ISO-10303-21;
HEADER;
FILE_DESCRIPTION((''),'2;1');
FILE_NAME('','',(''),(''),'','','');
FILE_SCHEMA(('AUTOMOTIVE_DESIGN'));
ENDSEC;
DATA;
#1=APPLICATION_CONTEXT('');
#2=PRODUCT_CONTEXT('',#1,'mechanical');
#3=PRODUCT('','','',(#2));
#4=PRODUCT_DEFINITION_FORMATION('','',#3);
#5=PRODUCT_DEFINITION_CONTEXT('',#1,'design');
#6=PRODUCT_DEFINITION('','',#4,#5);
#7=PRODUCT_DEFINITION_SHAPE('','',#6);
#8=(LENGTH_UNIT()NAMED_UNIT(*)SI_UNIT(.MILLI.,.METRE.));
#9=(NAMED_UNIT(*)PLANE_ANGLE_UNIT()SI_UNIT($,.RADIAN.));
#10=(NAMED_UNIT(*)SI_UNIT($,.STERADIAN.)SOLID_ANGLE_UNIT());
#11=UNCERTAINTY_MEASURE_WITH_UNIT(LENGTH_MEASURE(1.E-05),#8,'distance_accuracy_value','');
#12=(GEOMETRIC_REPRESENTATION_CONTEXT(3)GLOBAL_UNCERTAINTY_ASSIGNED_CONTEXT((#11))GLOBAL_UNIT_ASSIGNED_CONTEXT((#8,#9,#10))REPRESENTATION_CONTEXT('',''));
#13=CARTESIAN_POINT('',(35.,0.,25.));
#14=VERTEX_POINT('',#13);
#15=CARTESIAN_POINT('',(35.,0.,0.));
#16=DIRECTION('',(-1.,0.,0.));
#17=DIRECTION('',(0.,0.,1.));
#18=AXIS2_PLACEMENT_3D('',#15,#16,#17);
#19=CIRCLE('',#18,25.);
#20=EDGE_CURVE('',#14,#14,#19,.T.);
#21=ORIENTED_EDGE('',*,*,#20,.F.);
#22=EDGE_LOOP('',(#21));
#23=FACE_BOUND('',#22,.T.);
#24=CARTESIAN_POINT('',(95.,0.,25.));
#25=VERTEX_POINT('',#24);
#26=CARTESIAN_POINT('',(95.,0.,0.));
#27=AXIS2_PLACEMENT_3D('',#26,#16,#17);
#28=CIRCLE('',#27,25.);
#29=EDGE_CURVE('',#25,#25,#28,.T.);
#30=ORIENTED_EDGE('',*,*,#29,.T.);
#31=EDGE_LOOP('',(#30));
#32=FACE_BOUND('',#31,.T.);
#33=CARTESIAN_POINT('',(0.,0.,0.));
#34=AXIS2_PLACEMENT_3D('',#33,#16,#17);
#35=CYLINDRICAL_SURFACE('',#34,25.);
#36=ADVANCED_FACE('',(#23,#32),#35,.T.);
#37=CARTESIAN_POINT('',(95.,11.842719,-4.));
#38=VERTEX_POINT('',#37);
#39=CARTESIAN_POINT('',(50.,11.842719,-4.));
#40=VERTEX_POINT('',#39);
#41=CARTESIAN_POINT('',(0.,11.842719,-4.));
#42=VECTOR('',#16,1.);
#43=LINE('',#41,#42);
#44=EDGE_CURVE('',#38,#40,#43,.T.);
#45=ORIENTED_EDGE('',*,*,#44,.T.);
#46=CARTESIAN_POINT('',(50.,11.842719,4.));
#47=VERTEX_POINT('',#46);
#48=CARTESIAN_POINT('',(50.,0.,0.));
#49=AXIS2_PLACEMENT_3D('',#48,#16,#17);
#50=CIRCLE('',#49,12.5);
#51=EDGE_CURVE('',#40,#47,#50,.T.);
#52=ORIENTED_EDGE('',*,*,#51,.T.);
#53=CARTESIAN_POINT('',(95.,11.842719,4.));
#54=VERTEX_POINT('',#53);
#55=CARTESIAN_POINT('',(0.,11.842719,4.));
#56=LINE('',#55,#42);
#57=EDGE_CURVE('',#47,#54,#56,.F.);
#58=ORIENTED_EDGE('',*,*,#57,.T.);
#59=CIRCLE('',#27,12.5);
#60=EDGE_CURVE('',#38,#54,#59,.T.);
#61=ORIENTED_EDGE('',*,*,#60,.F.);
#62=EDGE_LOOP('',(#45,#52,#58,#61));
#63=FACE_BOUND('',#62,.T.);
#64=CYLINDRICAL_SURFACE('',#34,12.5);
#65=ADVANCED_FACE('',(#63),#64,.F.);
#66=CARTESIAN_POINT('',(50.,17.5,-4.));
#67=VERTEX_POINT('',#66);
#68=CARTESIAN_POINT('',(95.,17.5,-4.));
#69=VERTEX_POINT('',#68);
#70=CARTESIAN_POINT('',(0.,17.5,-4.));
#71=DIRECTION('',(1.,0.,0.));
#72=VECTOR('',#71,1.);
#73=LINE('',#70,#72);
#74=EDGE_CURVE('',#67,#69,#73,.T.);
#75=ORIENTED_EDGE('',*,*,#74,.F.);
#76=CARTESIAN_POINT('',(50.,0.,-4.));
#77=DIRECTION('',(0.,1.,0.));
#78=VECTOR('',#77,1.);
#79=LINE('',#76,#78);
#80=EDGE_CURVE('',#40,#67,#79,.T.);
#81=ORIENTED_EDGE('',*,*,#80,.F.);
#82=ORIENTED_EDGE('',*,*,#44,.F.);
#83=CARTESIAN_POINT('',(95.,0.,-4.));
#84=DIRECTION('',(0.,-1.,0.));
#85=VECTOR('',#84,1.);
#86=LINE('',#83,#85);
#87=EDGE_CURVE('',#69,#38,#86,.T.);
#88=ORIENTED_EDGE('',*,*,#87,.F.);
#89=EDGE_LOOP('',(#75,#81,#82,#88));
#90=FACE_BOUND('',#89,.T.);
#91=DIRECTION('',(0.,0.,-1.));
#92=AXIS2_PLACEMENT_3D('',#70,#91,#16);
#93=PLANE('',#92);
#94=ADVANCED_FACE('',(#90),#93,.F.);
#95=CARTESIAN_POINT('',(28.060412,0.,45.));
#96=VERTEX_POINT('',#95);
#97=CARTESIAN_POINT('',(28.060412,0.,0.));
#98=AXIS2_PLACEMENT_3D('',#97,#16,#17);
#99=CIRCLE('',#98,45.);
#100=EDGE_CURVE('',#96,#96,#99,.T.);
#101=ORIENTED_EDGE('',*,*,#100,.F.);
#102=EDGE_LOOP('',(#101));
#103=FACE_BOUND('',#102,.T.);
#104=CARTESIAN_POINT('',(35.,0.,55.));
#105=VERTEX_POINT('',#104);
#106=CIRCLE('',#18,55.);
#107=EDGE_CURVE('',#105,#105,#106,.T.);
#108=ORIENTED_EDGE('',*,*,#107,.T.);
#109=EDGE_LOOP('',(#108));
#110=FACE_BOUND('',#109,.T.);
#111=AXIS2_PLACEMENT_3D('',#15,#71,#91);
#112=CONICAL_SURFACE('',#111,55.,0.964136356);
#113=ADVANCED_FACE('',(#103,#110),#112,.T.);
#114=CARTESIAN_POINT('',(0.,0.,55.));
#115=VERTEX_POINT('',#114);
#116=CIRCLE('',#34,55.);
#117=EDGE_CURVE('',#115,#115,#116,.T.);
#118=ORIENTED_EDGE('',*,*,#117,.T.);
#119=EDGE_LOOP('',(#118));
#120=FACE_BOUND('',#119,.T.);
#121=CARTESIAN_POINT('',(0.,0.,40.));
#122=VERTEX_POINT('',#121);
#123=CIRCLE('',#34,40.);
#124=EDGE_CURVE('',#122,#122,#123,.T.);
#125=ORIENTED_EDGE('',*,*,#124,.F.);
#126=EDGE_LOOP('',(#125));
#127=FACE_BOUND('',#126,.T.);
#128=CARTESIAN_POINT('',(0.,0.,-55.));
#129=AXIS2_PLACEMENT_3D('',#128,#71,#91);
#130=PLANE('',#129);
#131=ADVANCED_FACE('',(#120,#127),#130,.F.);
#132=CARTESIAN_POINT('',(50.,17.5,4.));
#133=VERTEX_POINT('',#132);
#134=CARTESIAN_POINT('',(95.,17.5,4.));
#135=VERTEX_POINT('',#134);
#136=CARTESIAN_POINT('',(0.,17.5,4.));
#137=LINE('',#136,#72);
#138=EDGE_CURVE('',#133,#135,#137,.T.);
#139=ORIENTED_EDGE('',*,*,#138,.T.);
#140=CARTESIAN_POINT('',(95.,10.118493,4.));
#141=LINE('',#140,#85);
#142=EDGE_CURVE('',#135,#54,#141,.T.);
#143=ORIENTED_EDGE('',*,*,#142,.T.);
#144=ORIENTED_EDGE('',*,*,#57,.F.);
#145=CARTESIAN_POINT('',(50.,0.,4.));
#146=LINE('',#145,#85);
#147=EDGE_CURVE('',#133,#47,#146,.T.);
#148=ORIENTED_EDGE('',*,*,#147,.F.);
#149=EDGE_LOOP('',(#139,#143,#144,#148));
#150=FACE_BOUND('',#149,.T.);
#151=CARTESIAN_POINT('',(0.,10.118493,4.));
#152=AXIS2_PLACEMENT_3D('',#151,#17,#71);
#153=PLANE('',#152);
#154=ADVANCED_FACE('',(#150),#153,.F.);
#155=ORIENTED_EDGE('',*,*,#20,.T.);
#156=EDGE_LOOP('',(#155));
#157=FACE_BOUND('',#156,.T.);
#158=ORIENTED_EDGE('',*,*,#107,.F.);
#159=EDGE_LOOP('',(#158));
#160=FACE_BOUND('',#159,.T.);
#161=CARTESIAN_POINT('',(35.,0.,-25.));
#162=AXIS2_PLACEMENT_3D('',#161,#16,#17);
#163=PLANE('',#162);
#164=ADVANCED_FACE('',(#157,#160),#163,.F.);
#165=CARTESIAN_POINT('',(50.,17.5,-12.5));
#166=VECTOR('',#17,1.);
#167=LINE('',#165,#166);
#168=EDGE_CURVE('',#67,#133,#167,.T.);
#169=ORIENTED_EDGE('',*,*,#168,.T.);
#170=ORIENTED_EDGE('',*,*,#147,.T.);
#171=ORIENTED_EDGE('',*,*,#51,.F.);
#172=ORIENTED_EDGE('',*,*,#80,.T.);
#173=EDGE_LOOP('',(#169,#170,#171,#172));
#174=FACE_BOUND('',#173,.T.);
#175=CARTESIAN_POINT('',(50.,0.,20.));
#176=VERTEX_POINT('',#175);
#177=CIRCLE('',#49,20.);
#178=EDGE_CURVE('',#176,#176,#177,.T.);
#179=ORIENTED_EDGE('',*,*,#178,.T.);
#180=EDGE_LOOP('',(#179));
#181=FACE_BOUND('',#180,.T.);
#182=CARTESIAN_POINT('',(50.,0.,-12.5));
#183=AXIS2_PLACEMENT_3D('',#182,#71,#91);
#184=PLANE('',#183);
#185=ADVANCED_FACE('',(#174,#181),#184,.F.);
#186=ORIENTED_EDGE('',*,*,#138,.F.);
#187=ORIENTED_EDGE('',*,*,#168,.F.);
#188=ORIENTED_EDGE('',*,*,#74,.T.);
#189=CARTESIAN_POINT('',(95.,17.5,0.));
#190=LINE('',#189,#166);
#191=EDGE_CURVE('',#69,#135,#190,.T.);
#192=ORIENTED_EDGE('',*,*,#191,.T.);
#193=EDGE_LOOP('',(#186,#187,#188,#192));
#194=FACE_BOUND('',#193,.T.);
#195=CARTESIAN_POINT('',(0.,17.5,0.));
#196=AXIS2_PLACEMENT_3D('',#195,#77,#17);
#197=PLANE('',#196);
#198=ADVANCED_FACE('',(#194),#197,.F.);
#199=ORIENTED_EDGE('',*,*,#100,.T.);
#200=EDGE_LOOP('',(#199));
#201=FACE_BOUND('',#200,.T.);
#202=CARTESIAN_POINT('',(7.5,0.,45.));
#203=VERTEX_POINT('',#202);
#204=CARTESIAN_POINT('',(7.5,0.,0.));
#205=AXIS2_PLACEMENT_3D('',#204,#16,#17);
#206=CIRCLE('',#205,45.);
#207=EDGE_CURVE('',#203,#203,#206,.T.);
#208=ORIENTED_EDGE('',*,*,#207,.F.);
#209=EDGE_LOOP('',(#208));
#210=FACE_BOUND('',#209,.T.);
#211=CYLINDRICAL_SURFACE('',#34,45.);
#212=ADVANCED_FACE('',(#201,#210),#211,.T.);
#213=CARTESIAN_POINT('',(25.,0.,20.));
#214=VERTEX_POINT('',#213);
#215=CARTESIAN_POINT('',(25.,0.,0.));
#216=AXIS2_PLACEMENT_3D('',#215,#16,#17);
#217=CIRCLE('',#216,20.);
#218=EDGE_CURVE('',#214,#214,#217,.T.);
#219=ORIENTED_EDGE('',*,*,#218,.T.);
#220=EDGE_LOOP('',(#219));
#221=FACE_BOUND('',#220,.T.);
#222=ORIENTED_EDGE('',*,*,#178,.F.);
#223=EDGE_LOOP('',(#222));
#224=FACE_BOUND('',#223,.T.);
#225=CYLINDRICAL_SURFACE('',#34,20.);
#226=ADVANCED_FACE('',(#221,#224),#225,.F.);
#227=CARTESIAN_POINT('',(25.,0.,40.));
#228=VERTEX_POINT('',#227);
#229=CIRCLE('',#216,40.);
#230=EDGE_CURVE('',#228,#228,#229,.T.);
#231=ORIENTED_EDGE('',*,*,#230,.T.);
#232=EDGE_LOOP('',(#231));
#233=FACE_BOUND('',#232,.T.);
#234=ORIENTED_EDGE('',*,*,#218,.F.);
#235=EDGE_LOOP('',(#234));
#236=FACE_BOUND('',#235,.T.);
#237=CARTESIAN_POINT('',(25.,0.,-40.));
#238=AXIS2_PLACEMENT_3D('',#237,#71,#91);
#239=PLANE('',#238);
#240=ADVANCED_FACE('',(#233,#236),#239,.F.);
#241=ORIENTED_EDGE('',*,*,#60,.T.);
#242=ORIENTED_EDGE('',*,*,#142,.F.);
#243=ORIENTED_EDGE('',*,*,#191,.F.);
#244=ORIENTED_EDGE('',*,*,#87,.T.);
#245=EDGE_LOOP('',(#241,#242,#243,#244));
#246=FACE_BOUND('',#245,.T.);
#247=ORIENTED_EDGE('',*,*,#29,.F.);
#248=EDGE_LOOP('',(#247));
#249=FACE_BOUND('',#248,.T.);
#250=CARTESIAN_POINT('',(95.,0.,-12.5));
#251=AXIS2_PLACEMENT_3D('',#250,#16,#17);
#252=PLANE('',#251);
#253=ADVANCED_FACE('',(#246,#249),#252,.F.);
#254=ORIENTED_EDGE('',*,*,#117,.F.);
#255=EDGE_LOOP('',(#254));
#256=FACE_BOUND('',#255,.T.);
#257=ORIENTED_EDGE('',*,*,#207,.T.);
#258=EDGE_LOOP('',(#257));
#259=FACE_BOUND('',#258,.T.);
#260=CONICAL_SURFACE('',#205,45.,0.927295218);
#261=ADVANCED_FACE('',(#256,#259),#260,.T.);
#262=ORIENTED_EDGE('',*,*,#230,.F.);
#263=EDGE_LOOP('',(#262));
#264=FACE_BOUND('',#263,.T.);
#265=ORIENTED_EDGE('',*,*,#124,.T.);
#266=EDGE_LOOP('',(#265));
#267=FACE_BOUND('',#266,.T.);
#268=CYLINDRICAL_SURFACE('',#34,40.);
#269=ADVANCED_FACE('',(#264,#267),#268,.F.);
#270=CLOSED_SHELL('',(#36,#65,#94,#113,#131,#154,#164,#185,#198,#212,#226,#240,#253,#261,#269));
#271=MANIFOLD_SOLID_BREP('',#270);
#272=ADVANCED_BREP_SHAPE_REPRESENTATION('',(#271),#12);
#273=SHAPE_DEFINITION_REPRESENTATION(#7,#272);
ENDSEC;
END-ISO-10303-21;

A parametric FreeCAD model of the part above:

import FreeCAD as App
import Part
import Sketcher

V = App.Vector

doc = App.newDocument("Part")
body = doc.addObject("PartDesign::Body", "Body")

sketch1 = doc.addObject("Sketcher::SketchObject", "Sketch")
body.addObject(sketch1)
sketch1.AttachmentSupport = (doc.XZ_Plane, [""])
sketch1.MapMode = "FlatFace"
sketch1.addGeometry([
    Part.LineSegment(V(95, -12, 0), V(95, -25, 0)),
    Part.LineSegment(V(95, -25, 0), V(35, -25, 0)),
    Part.LineSegment(V(35, -25, 0), V(35, -55, 0)),
    Part.LineSegment(V(35, -55, 0), V(28, -45, 0)),
    Part.LineSegment(V(28, -45, 0), V(8, -45, 0)),
    Part.LineSegment(V(8, -45, 0), V(0, -55, 0)),
    Part.LineSegment(V(0, -55, 0), V(0, -40, 0)),
    Part.LineSegment(V(0, -40, 0), V(25, -40, 0)),
    Part.LineSegment(V(25, -40, 0), V(25, -20, 0)),
    Part.LineSegment(V(25, -20, 0), V(50, -20, 0)),
    Part.LineSegment(V(50, -20, 0), V(50, -12, 0)),
    Part.LineSegment(V(50, -12, 0), V(95, -12, 0)),
], False)
sketch1.addConstraint([
    Sketcher.Constraint("Coincident", 0, 2, 1, 1),
    Sketcher.Constraint("Coincident", 1, 2, 2, 1),
    Sketcher.Constraint("Coincident", 2, 2, 3, 1),
    Sketcher.Constraint("Coincident", 3, 2, 4, 1),
    Sketcher.Constraint("Coincident", 4, 2, 5, 1),
    Sketcher.Constraint("Coincident", 5, 2, 6, 1),
    Sketcher.Constraint("Coincident", 6, 2, 7, 1),
    Sketcher.Constraint("Coincident", 7, 2, 8, 1),
    Sketcher.Constraint("Coincident", 8, 2, 9, 1),
    Sketcher.Constraint("Coincident", 9, 2, 10, 1),
    Sketcher.Constraint("Coincident", 10, 2, 11, 1),
    Sketcher.Constraint("Coincident", 11, 2, 0, 1),
    Sketcher.Constraint("Vertical", 0),
    Sketcher.Constraint("Horizontal", 1),
    Sketcher.Constraint("Vertical", 2),
    Sketcher.Constraint("Horizontal", 4),
    Sketcher.Constraint("Vertical", 6),
    Sketcher.Constraint("Horizontal", 7),
    Sketcher.Constraint("Vertical", 8),
    Sketcher.Constraint("Horizontal", 9),
    Sketcher.Constraint("Vertical", 10),
    Sketcher.Constraint("Horizontal", 11),
    Sketcher.Constraint("PointOnObject", 5, 2, -2),
    Sketcher.Constraint("Horizontal", 2, 2, 5, 2),
    Sketcher.Constraint("Equal", 7, 9),
    Sketcher.Constraint("DistanceX", 1, 2, 1, 1, 60.0),
    Sketcher.Constraint("DistanceX", 7, 1, 7, 2, 25.0),
    Sketcher.Constraint("DistanceX", 11, 1, 11, 2, 45.0),
    Sketcher.Constraint("DistanceY", 2, 2, 2, 1, 30.0),
    Sketcher.Constraint("DistanceY", 6, 1, 6, 2, 15.0),
    Sketcher.Constraint("DistanceY", 8, 1, 8, 2, 20.0),
    Sketcher.Constraint("DistanceY", 0, 2, 0, 1, 12.5),
    Sketcher.Constraint("DistanceY", 0, 2, -1, 1, 25.0),
    Sketcher.Constraint("DistanceY", 3, 2, -1, 1, 45.0),
    Sketcher.Constraint("Distance", 5, 12.5),
    Sketcher.Constraint("DistanceX", 4, 2, 4, 1, 20.560412),
])
revolution = doc.addObject("PartDesign::Revolution", "Revolution")
body.addObject(revolution)
revolution.Profile = sketch1
revolution.ReferenceAxis = (sketch1, ["H_Axis"])
revolution.Angle = 360

sketch2 = doc.addObject("Sketcher::SketchObject", "Sketch001")
body.addObject(sketch2)
sketch2.AttachmentSupport = (doc.YZ_Plane, [""])
sketch2.MapMode = "FlatFace"
sketch2.AttachmentOffset = App.Placement(V(0, 0, 95), App.Rotation())
sketch2.addGeometry([
    Part.LineSegment(V(18, 4, 0), V(10, 4, 0)),
    Part.LineSegment(V(10, 4, 0), V(10, -4, 0)),
    Part.LineSegment(V(10, -4, 0), V(18, -4, 0)),
    Part.LineSegment(V(18, -4, 0), V(18, 4, 0)),
], False)
sketch2.addConstraint([
    Sketcher.Constraint("Coincident", 0, 2, 1, 1),
    Sketcher.Constraint("Coincident", 1, 2, 2, 1),
    Sketcher.Constraint("Coincident", 2, 2, 3, 1),
    Sketcher.Constraint("Coincident", 3, 2, 0, 1),
    Sketcher.Constraint("Horizontal", 0),
    Sketcher.Constraint("Vertical", 1),
    Sketcher.Constraint("Horizontal", 2),
    Sketcher.Constraint("Vertical", 3),
    Sketcher.Constraint("DistanceY", 1, 2, 1, 1, 8.0),
    Sketcher.Constraint("DistanceY", -1, 1, 0, 2, 4.0),
    Sketcher.Constraint("DistanceX", -1, 1, 2, 2, 17.5),
    Sketcher.Constraint("DistanceX", 0, 2, 0, 1, 7.381507),
])
pocket1 = doc.addObject("PartDesign::Pocket", "Pocket")
body.addObject(pocket1)
pocket1.Profile = sketch2
pocket1.Type = "ThroughAll"

doc.recompute()
